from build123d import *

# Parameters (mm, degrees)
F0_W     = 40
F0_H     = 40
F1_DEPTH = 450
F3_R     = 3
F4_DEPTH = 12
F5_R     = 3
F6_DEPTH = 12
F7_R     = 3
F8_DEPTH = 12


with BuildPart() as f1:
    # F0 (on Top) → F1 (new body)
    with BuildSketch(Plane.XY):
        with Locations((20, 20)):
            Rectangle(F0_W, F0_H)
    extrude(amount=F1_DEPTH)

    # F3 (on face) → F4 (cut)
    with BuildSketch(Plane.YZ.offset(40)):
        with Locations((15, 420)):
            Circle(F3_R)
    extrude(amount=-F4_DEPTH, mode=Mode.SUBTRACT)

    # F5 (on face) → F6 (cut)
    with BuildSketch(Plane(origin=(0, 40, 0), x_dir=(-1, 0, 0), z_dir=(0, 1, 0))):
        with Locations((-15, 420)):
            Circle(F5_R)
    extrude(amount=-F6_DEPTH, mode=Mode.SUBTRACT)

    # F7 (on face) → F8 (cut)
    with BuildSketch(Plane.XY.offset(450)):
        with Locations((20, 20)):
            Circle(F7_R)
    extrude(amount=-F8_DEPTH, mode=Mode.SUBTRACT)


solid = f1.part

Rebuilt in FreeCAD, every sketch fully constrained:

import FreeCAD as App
import Part
import Sketcher
Q = App.Units.Quantity

doc = App.newDocument("Part")
body = doc.addObject("PartDesign::Body", "Body")

sketch1 = body.newObject("Sketcher::SketchObject", "Sketch")
sketch1.AttachmentSupport = (doc.getObject("XY_Plane"), [""])
sketch1.MapMode = "FlatFace"
sketch1.addGeometry([
    Part.LineSegment(App.Vector(0, 40, 0), App.Vector(0, 0, 0)),
    Part.LineSegment(App.Vector(0, 0, 0), App.Vector(40, 0, 0)),
    Part.LineSegment(App.Vector(40, 0, 0), App.Vector(40, 40, 0)),
    Part.LineSegment(App.Vector(40, 40, 0), App.Vector(0, 40, 0)),
], False)
sketch1.addConstraint([
    Sketcher.Constraint("Coincident", 0, 2, 1, 1),
    Sketcher.Constraint("Coincident", 1, 2, 2, 1),
    Sketcher.Constraint("Coincident", 2, 2, 3, 1),
    Sketcher.Constraint("Coincident", 3, 2, 0, 1),
    Sketcher.Constraint("Vertical", 0),
    Sketcher.Constraint("Horizontal", 1),
    Sketcher.Constraint("Vertical", 2),
    Sketcher.Constraint("Horizontal", 3),
    Sketcher.Constraint("Coincident", 0, 2, -1, 1),
    Sketcher.Constraint("Equal", 3, 0),
    Sketcher.Constraint("DistanceX", 1, 1, 1, 2, Q("40 mm")),
])
pad1 = body.newObject("PartDesign::Pad", "Pad")
pad1.Profile = sketch1
pad1.Length = 450

sketch2 = body.newObject("Sketcher::SketchObject", "Sketch001")
sketch2.AttachmentSupport = (doc.getObject("YZ_Plane"), [""])
sketch2.MapMode = "FlatFace"
sketch2.AttachmentOffset = App.Placement(App.Vector(0, 0, 40), App.Rotation())
sketch2.addGeometry(Part.Circle(App.Vector(15, 420, 0), App.Vector(0, 0, 1), 3), False)
sketch2.addConstraint([
    Sketcher.Constraint("Diameter", 0, Q("6 mm")),
    Sketcher.Constraint("DistanceX", -1, 1, 0, 3, Q("15 mm")),
    Sketcher.Constraint("DistanceY", -1, 1, 0, 3, Q("420 mm")),
])
pocket1 = body.newObject("PartDesign::Pocket", "Pocket")
pocket1.Profile = sketch2
pocket1.Length = 12

sketch3 = body.newObject("Sketcher::SketchObject", "Sketch002")
sketch3.AttachmentSupport = (doc.getObject("XZ_Plane"), [""])
sketch3.MapMode = "FlatFace"
sketch3.AttachmentOffset = App.Placement(App.Vector(0, 0, -40), App.Rotation())
sketch3.addGeometry(Part.Circle(App.Vector(15, 420, 0), App.Vector(0, 0, 1), 3), False)
sketch3.addConstraint([
    Sketcher.Constraint("Diameter", 0, Q("6 mm")),
    Sketcher.Constraint("DistanceX", -1, 1, 0, 3, Q("15 mm")),
    Sketcher.Constraint("DistanceY", -1, 1, 0, 3, Q("420 mm")),
])
pocket2 = body.newObject("PartDesign::Pocket", "Pocket001")
pocket2.Profile = sketch3
pocket2.Length = 12
pocket2.Reversed = True

sketch4 = body.newObject("Sketcher::SketchObject", "Sketch003")
sketch4.AttachmentSupport = (doc.getObject("XY_Plane"), [""])
sketch4.MapMode = "FlatFace"
sketch4.AttachmentOffset = App.Placement(App.Vector(0, 0, 450), App.Rotation())
sketch4.addGeometry(Part.Circle(App.Vector(20, 20, 0), App.Vector(0, 0, 1), 3), False)
sketch4.addConstraint([
    Sketcher.Constraint("Diameter", 0, Q("6 mm")),
    Sketcher.Constraint("DistanceX", -1, 1, 0, 3, Q("20 mm")),
    Sketcher.Constraint("DistanceY", -1, 1, 0, 3, Q("20 mm")),
])
pocket3 = body.newObject("PartDesign::Pocket", "Pocket002")
pocket3.Profile = sketch4
pocket3.Length = 12

doc.recompute()
